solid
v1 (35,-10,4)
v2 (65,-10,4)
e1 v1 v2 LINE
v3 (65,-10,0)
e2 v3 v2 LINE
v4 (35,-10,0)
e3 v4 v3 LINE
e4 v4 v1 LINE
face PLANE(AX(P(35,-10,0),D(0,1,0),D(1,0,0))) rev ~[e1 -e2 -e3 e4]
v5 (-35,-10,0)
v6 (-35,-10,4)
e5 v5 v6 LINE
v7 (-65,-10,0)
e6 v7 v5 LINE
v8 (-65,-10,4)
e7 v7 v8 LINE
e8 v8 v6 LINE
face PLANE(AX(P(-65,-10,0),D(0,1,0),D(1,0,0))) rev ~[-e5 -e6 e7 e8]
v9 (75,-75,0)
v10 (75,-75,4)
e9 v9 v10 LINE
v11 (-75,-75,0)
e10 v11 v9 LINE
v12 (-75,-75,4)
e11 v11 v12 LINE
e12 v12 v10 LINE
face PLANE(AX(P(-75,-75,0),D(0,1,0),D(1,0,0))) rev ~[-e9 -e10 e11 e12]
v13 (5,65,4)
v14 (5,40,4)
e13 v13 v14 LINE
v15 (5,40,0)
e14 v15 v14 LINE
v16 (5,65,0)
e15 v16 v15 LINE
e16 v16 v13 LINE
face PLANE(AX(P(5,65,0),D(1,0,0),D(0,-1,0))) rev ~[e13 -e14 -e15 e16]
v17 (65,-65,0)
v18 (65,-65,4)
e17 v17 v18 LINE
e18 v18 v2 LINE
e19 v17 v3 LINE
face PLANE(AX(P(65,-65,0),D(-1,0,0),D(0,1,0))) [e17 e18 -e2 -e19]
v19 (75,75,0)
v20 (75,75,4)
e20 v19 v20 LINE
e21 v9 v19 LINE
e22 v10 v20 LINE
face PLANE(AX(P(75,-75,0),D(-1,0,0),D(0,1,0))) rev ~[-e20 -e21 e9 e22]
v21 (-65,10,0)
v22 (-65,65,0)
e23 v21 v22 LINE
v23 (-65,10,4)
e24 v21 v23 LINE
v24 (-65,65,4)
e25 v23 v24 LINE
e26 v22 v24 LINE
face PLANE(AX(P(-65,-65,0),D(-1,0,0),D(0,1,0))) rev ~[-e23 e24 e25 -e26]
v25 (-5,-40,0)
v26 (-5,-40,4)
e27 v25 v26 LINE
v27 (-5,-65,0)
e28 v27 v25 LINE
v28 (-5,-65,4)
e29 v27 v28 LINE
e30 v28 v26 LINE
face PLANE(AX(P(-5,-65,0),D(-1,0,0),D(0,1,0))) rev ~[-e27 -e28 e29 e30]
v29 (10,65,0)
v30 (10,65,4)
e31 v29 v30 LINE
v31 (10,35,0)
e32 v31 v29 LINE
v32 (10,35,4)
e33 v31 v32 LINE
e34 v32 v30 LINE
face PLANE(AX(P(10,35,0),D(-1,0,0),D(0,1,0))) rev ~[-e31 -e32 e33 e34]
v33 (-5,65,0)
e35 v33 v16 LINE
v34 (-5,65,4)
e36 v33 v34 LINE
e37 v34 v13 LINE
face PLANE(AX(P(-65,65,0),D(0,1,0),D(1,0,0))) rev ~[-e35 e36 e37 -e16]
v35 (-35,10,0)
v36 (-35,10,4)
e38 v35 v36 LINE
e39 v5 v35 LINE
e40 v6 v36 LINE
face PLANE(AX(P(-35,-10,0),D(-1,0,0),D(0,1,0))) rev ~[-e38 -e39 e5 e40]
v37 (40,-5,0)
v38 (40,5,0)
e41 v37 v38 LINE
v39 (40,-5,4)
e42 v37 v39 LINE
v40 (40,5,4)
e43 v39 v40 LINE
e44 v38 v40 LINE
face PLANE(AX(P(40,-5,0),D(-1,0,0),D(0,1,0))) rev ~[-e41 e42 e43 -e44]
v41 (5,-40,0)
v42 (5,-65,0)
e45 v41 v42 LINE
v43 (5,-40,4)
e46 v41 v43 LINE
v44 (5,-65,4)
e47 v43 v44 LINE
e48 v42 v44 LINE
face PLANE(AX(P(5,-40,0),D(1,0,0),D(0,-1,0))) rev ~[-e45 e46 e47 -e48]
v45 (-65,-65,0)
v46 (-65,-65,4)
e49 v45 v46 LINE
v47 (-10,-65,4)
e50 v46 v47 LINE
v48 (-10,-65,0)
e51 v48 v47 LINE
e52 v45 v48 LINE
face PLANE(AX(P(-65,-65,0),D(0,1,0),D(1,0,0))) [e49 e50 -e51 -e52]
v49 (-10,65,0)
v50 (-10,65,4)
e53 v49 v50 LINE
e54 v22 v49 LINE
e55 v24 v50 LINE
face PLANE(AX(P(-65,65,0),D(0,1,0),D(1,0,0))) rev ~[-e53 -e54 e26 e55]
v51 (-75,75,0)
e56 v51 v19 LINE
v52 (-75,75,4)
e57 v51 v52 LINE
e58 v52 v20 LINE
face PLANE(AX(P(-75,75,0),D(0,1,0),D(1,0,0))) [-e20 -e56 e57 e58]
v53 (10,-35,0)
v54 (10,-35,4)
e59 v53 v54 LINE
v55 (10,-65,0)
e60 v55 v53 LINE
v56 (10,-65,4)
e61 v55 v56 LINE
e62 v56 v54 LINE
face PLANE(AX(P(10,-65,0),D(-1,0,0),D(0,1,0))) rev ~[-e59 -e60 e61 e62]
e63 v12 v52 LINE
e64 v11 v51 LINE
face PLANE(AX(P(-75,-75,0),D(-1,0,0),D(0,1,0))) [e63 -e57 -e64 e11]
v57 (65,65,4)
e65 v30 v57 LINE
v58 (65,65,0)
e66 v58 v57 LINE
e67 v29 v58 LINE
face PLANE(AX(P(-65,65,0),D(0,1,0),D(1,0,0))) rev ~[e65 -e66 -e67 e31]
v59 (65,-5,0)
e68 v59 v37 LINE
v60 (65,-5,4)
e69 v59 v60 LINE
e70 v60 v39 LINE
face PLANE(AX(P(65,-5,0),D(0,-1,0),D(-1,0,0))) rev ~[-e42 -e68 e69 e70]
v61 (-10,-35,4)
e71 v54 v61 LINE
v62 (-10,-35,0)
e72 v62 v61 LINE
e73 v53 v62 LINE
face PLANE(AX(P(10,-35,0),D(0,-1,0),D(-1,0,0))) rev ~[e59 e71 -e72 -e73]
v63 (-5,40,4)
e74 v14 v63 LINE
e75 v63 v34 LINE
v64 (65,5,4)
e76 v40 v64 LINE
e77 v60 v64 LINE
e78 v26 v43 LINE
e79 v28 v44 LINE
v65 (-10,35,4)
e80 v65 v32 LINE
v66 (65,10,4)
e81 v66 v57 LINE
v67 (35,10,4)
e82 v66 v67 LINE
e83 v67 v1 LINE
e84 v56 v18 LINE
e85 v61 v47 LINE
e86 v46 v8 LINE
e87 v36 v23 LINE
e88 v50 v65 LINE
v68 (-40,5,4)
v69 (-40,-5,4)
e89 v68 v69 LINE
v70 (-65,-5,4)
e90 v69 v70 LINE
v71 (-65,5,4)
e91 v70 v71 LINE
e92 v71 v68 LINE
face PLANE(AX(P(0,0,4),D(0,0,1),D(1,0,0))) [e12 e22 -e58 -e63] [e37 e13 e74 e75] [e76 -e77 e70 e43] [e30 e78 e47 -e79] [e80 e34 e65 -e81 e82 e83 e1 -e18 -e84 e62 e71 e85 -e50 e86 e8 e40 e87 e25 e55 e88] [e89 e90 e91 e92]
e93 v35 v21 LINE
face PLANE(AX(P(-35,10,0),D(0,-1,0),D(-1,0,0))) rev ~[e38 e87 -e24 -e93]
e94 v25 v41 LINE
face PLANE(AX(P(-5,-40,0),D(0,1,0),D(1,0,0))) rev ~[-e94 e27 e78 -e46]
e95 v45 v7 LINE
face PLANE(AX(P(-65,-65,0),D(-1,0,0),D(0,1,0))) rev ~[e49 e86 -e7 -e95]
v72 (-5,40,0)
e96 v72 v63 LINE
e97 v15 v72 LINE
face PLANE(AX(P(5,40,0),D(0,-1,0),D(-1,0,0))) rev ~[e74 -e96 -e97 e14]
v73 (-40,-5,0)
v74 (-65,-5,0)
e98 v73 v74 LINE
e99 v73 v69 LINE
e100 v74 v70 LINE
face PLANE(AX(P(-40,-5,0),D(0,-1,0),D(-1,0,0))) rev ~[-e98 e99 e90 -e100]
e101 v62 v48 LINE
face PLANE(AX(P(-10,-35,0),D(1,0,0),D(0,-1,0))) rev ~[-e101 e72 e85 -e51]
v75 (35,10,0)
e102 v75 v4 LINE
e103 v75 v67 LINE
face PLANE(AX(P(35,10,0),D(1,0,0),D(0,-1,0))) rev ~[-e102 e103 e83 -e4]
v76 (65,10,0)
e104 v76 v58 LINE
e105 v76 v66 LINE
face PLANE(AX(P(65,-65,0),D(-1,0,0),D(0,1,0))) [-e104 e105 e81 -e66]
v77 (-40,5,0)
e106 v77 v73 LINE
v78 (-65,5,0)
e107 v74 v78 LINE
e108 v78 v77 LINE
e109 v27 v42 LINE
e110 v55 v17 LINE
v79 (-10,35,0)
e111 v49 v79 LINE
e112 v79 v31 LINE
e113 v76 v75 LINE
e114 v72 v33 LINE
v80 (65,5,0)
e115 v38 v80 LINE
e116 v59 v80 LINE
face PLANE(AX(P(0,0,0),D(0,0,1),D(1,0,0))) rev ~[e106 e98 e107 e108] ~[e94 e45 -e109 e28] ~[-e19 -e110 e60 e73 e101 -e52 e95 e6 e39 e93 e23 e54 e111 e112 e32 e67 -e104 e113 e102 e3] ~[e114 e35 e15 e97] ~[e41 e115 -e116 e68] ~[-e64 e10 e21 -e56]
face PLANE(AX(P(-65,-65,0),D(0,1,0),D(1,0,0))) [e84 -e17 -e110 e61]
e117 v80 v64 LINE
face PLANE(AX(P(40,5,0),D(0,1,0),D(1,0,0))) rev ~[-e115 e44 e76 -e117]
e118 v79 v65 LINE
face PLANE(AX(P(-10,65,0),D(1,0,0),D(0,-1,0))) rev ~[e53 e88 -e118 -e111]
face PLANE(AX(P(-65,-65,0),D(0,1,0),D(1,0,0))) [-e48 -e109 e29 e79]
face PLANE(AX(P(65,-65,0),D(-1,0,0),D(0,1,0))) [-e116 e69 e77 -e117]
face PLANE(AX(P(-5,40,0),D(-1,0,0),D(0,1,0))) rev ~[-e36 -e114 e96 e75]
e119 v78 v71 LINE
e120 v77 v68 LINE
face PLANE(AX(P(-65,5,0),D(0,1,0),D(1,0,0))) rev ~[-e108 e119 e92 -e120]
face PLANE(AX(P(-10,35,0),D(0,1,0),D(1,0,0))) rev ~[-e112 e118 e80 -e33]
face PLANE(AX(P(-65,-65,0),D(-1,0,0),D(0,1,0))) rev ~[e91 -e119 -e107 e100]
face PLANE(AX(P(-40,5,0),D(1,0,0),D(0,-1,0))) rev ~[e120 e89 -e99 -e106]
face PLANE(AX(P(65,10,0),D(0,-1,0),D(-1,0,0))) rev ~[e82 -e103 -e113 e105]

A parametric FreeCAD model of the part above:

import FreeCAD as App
import Part
import Sketcher

V = App.Vector


def add_polygon(sketch, points):
    """Adds a closed chain of lines whose ends are joined by coincident constraints."""
    first, n = sketch.GeometryCount, len(points)
    for a, b in zip(points, points[1:] + points[:1]):
        sketch.addGeometry(Part.LineSegment(App.Vector(*a, 0), App.Vector(*b, 0)), False)
    for i in range(n):
        sketch.addConstraint(Sketcher.Constraint("Coincident", first + i, 2, first + (i + 1) % n, 1))

doc = App.newDocument("Part")
body = doc.addObject("PartDesign::Body", "Body")

# Sketch on XY plane
sketch1 = body.newObject("Sketcher::SketchObject", "Sketch")
sketch1.AttachmentSupport = (doc.getObject("XY_Plane"), [""])
sketch1.MapMode = "FlatFace"
add_polygon(sketch1, [(-75, 75), (-75, -75), (75, -75), (75, 75)])  # lines 0-3
add_polygon(sketch1, [(65, -65), (-65, -65), (-65, 65), (65, 65)])  # lines 4-7
sketch1.addConstraint([
    Sketcher.Constraint("Vertical", 0),
    Sketcher.Constraint("Horizontal", 1),
    Sketcher.Constraint("Vertical", 2),
    Sketcher.Constraint("Horizontal", 3),
    Sketcher.Constraint("Horizontal", 4),
    Sketcher.Constraint("Vertical", 5),
    Sketcher.Constraint("Horizontal", 6),
    Sketcher.Constraint("Vertical", 7),
    Sketcher.Constraint("Symmetric", 0, 2, 2, 2, -1, 1),
    Sketcher.Constraint("Symmetric", 4, 2, 6, 2, -1, 1),
    Sketcher.Constraint("Equal", 3, 0),
    Sketcher.Constraint("Equal", 6, 5),
    Sketcher.Constraint("DistanceX", 1, 1, 1, 2, 150.0),
    Sketcher.Constraint("DistanceX", 4, 2, 4, 1, 130.0),
])
pad1 = body.newObject("PartDesign::Pad", "Pad")
pad1.Profile = sketch1
pad1.Length = 4

# Sketch on XY plane
sketch2 = body.newObject("Sketcher::SketchObject", "Sketch001")
sketch2.AttachmentSupport = (doc.getObject("XY_Plane"), [""])
sketch2.MapMode = "FlatFace"
add_polygon(sketch2, [(-35, 10), (-65, 10), (-65, 5), (-40, 5), (-40, -5), (-65, -5), (-65, -10), (-35, -10)])  # lines 0-7
add_polygon(sketch2, [(-5, 65), (-10, 65), (-10, 35), (10, 35), (10, 65), (5, 65), (5, 40), (-5, 40)])  # lines 8-15
add_polygon(sketch2, [(65, 5), (65, 10), (35, 10), (35, -10), (65, -10), (65, -5), (40, -5), (40, 5)])  # lines 16-23
add_polygon(sketch2, [(5, -65), (10, -65), (10, -35), (-10, -35), (-10, -65), (-5, -65), (-5, -40), (5, -40)])  # lines 24-31
sketch2.addConstraint([
    Sketcher.Constraint("Horizontal", 0),
    Sketcher.Constraint("Vertical", 1),
    Sketcher.Constraint("Horizontal", 2),
    Sketcher.Constraint("Vertical", 3),
    Sketcher.Constraint("Horizontal", 4),
    Sketcher.Constraint("Vertical", 5),
    Sketcher.Constraint("Horizontal", 6),
    Sketcher.Constraint("Vertical", 7),
    Sketcher.Constraint("Horizontal", 8),
    Sketcher.Constraint("Vertical", 9),
    Sketcher.Constraint("Horizontal", 10),
    Sketcher.Constraint("Vertical", 11),
    Sketcher.Constraint("Horizontal", 12),
    Sketcher.Constraint("Vertical", 13),
    Sketcher.Constraint("Horizontal", 14),
    Sketcher.Constraint("Vertical", 15),
    Sketcher.Constraint("Vertical", 16),
    Sketcher.Constraint("Horizontal", 17),
    Sketcher.Constraint("Vertical", 18),
    Sketcher.Constraint("Horizontal", 19),
    Sketcher.Constraint("Vertical", 20),
    Sketcher.Constraint("Horizontal", 21),
    Sketcher.Constraint("Vertical", 22),
    Sketcher.Constraint("Horizontal", 23),
    Sketcher.Constraint("Horizontal", 24),
    Sketcher.Constraint("Vertical", 25),
    Sketcher.Constraint("Horizontal", 26),
    Sketcher.Constraint("Vertical", 27),
    Sketcher.Constraint("Horizontal", 28),
    Sketcher.Constraint("Vertical", 29),
    Sketcher.Constraint("Horizontal", 30),
    Sketcher.Constraint("Vertical", 31),
    Sketcher.Constraint("Symmetric", 5, 2, 16, 2, -1, 1),
    Sketcher.Constraint("Symmetric", 7, 2, 18, 2, -1, 1),
    Sketcher.Constraint("Symmetric", 1, 2, 20, 2, -1, 1),
    Sketcher.Constraint("Symmetric", 3, 2, 22, 2, -1, 1),
    Sketcher.Constraint("Symmetric", 8, 2, 24, 2, -1, 1),
    Sketcher.Constraint("Symmetric", 10, 2, 26, 2, -1, 1),
    Sketcher.Constraint("Symmetric", 12, 2, 28, 2, -1, 1),
    Sketcher.Constraint("Symmetric", 14, 2, 30, 2, -1, 1),
    Sketcher.Constraint("Symmetric", 8, 2, 11, 2, -2),
    Sketcher.Constraint("Symmetric", 0, 2, 16, 2, -2),
    Sketcher.Constraint("Horizontal", 4, 2, 20, 2),
    Sketcher.Constraint("Vertical", 15, 2, 28, 2),
    Sketcher.Constraint("Equal", 28, 1),
    Sketcher.Constraint("Equal", 30, 3),
    Sketcher.Constraint("Equal", 19, 9),
    Sketcher.Constraint("Equal", 23, 13),
    Sketcher.Constraint("DistanceX", 0, 2, 0, 1, 30.0),
    Sketcher.Constraint("DistanceX", 2, 1, 2, 2, 25.0),
    Sketcher.Constraint("DistanceX", 8, 2, 8, 1, 5.0),
    Sketcher.Constraint("DistanceX", 10, 1, 10, 2, 20.0),
    Sketcher.Constraint("DistanceX", 0, 2, -1, 1, 65.0),
    Sketcher.Constraint("DistanceY", -1, 1, 8, 2, 65.0),
])
pad2 = body.newObject("PartDesign::Pad", "Pad001")
pad2.Profile = sketch2
pad2.Length = 4

doc.recompute()
